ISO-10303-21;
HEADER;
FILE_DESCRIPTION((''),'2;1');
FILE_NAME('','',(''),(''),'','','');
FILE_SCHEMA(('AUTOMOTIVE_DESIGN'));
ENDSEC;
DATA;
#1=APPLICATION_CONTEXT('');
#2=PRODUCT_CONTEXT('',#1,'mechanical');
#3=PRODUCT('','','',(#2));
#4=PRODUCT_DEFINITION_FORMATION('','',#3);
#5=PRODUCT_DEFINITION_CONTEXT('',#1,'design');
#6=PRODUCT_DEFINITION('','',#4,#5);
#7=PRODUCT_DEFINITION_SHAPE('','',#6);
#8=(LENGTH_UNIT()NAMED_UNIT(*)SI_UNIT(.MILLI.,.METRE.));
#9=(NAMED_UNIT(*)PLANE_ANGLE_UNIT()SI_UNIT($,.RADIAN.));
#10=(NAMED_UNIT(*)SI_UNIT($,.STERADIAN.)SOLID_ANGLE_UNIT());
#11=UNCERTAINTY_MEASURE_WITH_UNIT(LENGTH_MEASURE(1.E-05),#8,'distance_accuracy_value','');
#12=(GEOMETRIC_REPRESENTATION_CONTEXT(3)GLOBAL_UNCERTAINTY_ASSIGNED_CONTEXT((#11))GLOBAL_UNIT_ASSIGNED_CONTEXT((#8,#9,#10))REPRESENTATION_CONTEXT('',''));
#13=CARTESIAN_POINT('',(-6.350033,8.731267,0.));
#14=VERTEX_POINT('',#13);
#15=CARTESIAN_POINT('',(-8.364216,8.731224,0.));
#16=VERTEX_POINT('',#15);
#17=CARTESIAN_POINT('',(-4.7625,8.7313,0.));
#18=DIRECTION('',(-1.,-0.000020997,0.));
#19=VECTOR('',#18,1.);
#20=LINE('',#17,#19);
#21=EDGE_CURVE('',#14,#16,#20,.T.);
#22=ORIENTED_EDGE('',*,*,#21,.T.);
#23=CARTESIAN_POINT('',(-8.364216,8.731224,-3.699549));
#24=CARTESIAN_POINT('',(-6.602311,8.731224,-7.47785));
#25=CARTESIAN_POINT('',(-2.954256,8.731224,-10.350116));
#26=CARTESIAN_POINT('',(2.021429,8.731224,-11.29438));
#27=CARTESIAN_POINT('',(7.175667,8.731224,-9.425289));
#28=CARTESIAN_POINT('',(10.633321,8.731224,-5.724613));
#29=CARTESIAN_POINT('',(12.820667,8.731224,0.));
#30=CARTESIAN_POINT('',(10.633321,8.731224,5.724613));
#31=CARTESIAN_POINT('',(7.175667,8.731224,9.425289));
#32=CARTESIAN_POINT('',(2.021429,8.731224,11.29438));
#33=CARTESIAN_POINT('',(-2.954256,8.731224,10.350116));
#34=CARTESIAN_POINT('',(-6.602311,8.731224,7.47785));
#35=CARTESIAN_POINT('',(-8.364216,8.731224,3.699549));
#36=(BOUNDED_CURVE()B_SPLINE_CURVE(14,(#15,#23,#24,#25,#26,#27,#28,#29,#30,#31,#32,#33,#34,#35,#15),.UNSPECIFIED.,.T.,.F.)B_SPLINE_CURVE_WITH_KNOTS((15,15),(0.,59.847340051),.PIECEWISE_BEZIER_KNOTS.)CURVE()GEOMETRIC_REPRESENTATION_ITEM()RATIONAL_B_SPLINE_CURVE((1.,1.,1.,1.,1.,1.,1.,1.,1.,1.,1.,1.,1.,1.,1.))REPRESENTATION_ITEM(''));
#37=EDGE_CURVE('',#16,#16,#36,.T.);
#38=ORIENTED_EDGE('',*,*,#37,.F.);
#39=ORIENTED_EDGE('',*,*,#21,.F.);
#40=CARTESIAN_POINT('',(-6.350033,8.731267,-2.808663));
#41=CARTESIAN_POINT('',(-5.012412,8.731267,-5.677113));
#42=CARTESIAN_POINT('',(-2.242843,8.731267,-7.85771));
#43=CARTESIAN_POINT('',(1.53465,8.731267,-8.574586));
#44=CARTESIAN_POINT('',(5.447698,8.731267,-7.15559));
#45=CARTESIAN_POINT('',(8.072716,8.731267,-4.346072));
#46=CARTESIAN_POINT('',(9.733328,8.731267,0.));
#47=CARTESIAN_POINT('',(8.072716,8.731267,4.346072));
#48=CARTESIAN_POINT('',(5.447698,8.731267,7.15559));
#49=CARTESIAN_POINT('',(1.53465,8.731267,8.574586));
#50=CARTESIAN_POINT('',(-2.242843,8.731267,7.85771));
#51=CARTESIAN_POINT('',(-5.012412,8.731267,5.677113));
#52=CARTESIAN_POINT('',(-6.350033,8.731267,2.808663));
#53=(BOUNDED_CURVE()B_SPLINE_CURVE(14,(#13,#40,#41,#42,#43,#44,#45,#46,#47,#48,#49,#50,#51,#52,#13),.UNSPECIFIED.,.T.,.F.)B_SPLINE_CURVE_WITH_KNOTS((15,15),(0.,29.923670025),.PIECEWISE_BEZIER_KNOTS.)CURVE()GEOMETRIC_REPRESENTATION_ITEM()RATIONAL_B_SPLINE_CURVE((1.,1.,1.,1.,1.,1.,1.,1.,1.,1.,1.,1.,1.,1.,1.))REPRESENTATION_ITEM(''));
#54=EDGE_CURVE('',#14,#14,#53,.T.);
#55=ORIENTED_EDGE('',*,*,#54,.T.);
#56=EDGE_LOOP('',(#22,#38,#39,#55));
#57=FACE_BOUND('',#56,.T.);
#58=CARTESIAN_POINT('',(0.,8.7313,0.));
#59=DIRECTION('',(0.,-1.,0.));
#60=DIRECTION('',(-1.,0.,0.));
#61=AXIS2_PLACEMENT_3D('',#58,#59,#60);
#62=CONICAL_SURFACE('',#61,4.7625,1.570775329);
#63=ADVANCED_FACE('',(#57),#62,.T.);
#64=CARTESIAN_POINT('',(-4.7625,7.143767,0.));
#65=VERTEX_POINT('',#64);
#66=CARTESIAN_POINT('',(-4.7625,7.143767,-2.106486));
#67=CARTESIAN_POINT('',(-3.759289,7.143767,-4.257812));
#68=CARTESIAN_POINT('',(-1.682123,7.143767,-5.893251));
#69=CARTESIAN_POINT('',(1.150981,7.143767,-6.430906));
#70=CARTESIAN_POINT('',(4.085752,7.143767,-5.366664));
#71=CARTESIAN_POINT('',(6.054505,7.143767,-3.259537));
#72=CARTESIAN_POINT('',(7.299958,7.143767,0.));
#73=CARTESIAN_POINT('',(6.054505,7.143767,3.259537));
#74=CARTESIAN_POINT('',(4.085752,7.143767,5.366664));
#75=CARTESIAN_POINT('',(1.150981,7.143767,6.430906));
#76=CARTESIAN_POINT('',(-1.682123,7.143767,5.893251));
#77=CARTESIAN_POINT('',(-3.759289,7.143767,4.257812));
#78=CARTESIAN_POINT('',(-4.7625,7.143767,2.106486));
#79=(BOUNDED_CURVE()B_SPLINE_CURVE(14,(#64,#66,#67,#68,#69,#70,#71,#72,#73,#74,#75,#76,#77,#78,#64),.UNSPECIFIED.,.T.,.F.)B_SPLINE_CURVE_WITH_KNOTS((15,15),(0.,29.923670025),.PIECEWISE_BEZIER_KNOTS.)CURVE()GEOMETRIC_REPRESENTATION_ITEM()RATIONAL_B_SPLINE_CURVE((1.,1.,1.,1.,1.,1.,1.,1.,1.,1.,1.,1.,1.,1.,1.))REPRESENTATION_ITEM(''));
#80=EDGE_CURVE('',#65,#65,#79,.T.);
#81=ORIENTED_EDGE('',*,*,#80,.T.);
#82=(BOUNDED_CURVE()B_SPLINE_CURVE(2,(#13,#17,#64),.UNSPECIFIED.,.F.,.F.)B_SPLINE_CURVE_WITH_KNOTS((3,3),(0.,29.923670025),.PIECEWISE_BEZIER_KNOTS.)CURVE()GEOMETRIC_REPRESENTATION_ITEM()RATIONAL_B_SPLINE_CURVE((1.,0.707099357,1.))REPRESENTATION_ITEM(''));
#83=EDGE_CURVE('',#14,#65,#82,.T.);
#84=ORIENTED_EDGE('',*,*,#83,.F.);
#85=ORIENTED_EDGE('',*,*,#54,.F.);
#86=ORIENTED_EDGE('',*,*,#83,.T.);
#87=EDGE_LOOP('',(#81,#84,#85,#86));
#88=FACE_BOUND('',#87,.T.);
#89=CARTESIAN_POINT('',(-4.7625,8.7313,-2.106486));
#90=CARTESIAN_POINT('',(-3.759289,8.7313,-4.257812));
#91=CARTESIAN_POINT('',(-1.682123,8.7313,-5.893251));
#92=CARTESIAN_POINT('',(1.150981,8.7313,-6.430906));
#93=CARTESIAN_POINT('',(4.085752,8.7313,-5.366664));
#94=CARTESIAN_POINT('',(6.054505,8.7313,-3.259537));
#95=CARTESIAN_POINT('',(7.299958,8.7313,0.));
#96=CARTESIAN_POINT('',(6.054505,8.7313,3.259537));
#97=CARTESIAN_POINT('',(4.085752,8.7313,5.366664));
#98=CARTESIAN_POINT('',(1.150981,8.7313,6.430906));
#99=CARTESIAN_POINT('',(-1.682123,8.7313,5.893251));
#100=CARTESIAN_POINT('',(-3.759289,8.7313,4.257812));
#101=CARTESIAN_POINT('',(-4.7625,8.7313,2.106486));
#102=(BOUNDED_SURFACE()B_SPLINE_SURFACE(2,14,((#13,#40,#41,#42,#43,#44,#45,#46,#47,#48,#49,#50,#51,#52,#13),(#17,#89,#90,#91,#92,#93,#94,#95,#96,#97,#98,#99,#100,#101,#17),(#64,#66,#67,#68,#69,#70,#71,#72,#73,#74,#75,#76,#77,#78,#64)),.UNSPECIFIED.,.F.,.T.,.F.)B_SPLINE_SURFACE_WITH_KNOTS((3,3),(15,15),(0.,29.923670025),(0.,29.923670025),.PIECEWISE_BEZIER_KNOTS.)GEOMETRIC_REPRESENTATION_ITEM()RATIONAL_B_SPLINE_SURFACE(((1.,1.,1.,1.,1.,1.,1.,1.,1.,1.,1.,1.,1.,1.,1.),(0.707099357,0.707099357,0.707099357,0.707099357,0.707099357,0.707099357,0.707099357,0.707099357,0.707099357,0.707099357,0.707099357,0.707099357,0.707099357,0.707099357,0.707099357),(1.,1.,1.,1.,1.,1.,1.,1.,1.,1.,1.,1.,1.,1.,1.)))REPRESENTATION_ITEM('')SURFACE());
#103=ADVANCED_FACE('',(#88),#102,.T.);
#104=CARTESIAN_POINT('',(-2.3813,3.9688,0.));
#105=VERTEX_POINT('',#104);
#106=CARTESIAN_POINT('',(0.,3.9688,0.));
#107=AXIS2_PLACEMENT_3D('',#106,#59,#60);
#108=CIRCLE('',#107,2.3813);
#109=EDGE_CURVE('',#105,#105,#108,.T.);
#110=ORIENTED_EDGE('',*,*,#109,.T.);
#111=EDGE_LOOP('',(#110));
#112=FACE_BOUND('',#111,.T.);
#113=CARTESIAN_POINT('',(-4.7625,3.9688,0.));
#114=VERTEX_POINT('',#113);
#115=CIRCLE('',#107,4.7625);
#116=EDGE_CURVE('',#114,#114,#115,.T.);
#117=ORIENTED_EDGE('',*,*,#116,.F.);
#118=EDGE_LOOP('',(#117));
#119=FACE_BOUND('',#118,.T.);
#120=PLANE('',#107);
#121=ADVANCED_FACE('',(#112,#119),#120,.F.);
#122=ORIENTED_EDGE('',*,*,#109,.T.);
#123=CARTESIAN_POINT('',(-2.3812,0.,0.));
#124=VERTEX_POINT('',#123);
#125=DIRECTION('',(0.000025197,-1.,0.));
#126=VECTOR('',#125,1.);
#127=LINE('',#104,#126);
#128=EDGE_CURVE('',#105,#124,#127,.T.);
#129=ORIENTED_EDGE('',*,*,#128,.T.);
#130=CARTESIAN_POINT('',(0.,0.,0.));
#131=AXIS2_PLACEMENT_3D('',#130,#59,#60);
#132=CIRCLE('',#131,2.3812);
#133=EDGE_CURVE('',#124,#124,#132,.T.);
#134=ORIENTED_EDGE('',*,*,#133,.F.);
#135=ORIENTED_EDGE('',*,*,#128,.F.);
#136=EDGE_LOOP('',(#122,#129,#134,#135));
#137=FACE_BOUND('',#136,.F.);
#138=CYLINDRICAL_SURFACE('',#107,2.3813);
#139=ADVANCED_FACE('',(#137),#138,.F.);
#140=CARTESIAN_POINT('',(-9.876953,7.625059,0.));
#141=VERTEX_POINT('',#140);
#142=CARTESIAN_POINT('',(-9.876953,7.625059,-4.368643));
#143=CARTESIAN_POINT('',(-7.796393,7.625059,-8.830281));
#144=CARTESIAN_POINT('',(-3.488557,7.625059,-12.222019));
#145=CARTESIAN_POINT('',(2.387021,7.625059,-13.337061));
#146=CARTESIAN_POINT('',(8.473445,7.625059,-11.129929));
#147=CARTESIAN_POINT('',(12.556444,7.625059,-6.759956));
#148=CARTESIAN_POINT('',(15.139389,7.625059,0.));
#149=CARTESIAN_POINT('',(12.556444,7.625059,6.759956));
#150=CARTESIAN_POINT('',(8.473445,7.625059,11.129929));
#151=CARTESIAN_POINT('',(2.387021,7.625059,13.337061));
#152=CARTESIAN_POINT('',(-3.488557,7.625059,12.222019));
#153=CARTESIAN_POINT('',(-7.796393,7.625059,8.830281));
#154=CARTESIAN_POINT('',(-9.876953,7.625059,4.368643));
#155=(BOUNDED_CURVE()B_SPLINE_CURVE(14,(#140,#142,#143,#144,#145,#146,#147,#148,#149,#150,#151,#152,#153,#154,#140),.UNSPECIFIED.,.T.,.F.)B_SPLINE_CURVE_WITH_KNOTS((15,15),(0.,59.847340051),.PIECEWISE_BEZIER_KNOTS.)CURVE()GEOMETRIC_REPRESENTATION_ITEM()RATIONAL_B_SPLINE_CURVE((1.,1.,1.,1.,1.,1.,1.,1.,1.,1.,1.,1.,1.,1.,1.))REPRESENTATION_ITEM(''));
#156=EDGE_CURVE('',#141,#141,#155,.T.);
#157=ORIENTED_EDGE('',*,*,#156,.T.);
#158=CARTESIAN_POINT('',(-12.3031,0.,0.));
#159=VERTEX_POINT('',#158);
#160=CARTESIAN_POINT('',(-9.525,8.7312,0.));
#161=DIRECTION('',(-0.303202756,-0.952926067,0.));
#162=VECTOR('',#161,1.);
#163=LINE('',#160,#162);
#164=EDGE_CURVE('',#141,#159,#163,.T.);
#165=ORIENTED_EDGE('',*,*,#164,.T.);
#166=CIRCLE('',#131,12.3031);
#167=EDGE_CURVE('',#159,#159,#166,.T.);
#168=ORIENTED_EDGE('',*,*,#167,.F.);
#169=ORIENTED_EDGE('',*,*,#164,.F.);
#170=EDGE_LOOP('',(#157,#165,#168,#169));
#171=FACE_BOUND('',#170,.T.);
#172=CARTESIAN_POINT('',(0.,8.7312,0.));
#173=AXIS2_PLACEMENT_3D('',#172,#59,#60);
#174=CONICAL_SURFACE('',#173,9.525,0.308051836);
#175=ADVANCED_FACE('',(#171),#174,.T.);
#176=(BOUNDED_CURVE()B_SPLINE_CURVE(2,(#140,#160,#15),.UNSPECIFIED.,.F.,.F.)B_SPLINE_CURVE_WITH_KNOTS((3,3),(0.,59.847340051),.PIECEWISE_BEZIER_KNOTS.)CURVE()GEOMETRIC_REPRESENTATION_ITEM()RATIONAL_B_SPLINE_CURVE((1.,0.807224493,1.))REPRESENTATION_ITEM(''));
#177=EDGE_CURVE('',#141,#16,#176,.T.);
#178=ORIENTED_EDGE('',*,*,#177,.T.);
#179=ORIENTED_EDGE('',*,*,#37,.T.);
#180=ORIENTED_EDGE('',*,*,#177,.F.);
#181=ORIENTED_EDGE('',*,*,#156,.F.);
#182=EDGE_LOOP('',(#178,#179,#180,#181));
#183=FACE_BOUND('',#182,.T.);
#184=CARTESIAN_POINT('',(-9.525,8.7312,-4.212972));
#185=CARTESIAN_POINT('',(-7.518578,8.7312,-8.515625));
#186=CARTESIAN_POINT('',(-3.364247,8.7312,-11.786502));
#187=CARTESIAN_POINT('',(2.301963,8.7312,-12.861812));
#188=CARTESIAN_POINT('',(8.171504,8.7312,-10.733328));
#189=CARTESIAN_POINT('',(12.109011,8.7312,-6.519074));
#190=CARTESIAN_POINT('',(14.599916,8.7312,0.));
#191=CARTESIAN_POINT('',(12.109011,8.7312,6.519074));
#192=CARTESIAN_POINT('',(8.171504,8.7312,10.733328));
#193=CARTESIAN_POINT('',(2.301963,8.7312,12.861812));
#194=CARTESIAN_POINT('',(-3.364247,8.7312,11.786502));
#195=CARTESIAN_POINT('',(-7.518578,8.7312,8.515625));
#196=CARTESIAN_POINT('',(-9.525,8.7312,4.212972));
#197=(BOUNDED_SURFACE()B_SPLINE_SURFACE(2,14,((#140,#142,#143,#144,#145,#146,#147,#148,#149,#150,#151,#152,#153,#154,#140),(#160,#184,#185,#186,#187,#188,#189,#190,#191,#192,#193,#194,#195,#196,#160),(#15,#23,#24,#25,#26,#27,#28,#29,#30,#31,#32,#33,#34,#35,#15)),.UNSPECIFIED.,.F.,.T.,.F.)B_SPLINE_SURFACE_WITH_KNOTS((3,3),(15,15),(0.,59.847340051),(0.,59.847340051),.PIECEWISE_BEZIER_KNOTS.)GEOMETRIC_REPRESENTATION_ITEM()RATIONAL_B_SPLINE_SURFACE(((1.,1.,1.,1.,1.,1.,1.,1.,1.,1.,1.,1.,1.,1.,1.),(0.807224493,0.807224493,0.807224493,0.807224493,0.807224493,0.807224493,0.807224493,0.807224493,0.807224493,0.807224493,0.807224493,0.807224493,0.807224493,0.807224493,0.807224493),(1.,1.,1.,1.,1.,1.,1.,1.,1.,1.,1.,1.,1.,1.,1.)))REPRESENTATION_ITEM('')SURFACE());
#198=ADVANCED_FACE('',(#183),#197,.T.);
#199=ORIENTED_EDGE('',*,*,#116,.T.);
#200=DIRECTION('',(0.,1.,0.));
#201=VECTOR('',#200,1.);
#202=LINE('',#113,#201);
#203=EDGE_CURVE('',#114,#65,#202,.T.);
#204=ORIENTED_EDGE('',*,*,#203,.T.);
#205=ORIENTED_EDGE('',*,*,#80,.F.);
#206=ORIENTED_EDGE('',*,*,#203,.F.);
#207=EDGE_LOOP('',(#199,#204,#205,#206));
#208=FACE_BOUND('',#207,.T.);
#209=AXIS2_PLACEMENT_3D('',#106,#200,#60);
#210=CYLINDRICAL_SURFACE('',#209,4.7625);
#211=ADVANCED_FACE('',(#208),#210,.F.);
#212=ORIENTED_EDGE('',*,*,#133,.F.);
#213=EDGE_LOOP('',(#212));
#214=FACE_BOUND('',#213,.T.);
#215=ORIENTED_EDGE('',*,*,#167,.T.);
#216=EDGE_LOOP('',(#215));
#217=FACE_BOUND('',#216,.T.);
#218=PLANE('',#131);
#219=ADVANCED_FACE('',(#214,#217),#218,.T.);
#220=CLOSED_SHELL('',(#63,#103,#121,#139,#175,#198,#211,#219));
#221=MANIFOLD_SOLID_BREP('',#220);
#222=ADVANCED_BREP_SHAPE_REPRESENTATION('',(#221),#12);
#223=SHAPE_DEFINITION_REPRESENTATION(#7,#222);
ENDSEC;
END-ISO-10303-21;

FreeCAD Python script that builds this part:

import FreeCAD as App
import Part
import Sketcher

V = App.Vector
Q = App.Units.Quantity


def edges_at(feature, points):
    """Names of the edges that pass closest to the given points."""
    edges = feature.Shape.Edges
    near = lambda p: min(range(len(edges)), key=lambda i: edges[i].distToShape(Part.Vertex(*p))[0])
    return sorted({f"Edge{near(p) + 1}" for p in points})

doc = App.newDocument("Part")
body = doc.addObject("PartDesign::Body", "Body")

sketch1 = body.newObject("Sketcher::SketchObject", "Sketch")
sketch1.AttachmentSupport = (doc.getObject("XY_Plane"), [""])
sketch1.MapMode = "FlatFace"
sketch1.addGeometry(Part.LineSegment(V(-2.4, 0, 0), V(-2.4, 4, 0)), False)
sketch1.addGeometry(Part.LineSegment(V(-2.4, 4, 0), V(-4.8, 4, 0)), False)
sketch1.addGeometry(Part.LineSegment(V(-4.8, 4, 0), V(-4.8, 8.7, 0)), False)
sketch1.addGeometry(Part.LineSegment(V(-4.8, 8.7, 0), V(-9.5, 8.7, 0)), False)
sketch1.addGeometry(Part.LineSegment(V(-9.5, 8.7, 0), V(-12.3, 0, 0)), False)
sketch1.addGeometry(Part.LineSegment(V(-12.3, 0, 0), V(-2.4, 0, 0)), False)
sketch1.addConstraint(Sketcher.Constraint("Coincident", 0, 2, 1, 1))
sketch1.addConstraint(Sketcher.Constraint("Coincident", 1, 2, 2, 1))
sketch1.addConstraint(Sketcher.Constraint("Coincident", 2, 2, 3, 1))
sketch1.addConstraint(Sketcher.Constraint("Coincident", 3, 2, 4, 1))
sketch1.addConstraint(Sketcher.Constraint("Coincident", 4, 2, 5, 1))
sketch1.addConstraint(Sketcher.Constraint("Coincident", 5, 2, 0, 1))
sketch1.addConstraint(Sketcher.Constraint("Vertical", 0))
sketch1.addConstraint(Sketcher.Constraint("Horizontal", 1))
sketch1.addConstraint(Sketcher.Constraint("Vertical", 2))
sketch1.addConstraint(Sketcher.Constraint("Horizontal", 3))
sketch1.addConstraint(Sketcher.Constraint("Horizontal", 5))
sketch1.addConstraint(Sketcher.Constraint("PointOnObject", 4, 2, -1))
sketch1.addConstraint(Sketcher.Constraint("Equal", 3, 2))
sketch1.addConstraint(Sketcher.Constraint("DistanceX", 3, 2, 3, 1, Q("0.1875 in")))
sketch1.addConstraint(Sketcher.Constraint("DistanceY", 0, 1, 0, 2, Q("0.156252 in")))
sketch1.addConstraint(Sketcher.Constraint("DistanceX", 1, 2, -1, 1, Q("0.1875 in")))
sketch1.addConstraint(Sketcher.Constraint("DistanceX", 1, 2, 1, 1, Q("0.093748 in")))
sketch1.addConstraint(Sketcher.Constraint("DistanceX", 5, 1, 5, 2, Q("0.3906299 in")))
revolution = body.newObject("PartDesign::Revolution", "Revolution")
revolution.Profile = sketch1
revolution.ReferenceAxis = (sketch1, ["V_Axis"])
revolution.Angle = 360
doc.recompute()

fillet = body.newObject("PartDesign::Fillet", "Fillet")
fillet.Base = (revolution, edges_at(revolution, [(9.525, 8.731, 0), (4.763, 8.731, 0)]))
fillet.Radius = Q("0.0625 in")

doc.recompute()
